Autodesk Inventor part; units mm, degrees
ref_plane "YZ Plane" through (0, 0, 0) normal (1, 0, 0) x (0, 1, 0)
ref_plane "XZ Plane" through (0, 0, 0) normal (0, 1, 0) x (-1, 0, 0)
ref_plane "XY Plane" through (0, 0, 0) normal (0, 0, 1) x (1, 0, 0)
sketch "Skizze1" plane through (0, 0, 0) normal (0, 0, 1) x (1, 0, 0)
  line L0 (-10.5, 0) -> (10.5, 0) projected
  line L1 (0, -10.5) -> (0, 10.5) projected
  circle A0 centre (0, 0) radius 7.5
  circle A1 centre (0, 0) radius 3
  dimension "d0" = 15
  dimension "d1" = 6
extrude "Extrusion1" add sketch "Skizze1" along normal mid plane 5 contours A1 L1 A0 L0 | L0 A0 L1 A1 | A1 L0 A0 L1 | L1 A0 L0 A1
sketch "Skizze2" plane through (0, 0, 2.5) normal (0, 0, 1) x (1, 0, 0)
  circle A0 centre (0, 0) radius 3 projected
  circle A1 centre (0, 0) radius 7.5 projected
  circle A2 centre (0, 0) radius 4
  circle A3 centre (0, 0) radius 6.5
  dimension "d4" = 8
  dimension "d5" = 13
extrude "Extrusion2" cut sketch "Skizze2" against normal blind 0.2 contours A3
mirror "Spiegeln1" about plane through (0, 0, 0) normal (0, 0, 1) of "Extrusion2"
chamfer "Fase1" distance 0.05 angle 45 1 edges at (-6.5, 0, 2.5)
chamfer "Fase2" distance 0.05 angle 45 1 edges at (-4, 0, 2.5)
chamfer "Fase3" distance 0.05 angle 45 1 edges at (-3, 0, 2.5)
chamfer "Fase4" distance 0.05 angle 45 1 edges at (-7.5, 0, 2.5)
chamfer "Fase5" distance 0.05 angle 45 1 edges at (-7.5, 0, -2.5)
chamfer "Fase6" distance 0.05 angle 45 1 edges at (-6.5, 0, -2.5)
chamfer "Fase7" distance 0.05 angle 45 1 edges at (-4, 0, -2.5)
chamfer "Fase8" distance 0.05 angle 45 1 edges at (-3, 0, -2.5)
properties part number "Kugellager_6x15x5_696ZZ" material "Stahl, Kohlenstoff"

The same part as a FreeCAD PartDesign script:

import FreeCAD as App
import Part
import Sketcher
from FreeCAD import Vector
Q = App.Units.Quantity


def edges_at(feature, points):
    """Names of the edges that pass closest to the given points."""
    edges = feature.Shape.Edges
    near = lambda p: min(range(len(edges)), key=lambda i: edges[i].distToShape(Part.Vertex(*p))[0])
    return sorted({f"Edge{near(p) + 1}" for p in points})

doc = App.newDocument("Part")
body = doc.addObject("PartDesign::Body", "Body")

# Sketch on XY plane
sketch1 = body.newObject("Sketcher::SketchObject", "Sketch")
sketch1.AttachmentSupport = (doc.getObject("XY_Plane"), [""])
sketch1.MapMode = "FlatFace"
sketch1.addGeometry([
    Part.Circle(Vector(0, 0, 0), Vector(0, 0, 1), 7.5),
    Part.Circle(Vector(0, 0, 0), Vector(0, 0, 1), 3),
], False)
sketch1.addConstraint([
    Sketcher.Constraint("Coincident", 0, 3, -1, 1),
    Sketcher.Constraint("Coincident", 1, 3, -1, 1),
    Sketcher.Constraint("Diameter", 0, Q("15 mm")),
    Sketcher.Constraint("Diameter", 1, Q("6 mm")),
])
pad1 = body.newObject("PartDesign::Pad", "Pad")
pad1.Profile = sketch1
pad1.Length = 5
pad1.Midplane = True

# Sketch on XY plane
sketch2 = body.newObject("Sketcher::SketchObject", "Sketch001")
sketch2.AttachmentSupport = (doc.getObject("XY_Plane"), [""])
sketch2.MapMode = "FlatFace"
sketch2.AttachmentOffset = App.Placement(Vector(0, 0, 2.5), App.Rotation())
sketch2.addGeometry([
    Part.Circle(Vector(0, 0, 0), Vector(0, 0, 1), 6.5),
    Part.Circle(Vector(0, 0, 0), Vector(0, 0, 1), 4),
], False)
sketch2.addConstraint([
    Sketcher.Constraint("Coincident", 0, 3, -1, 1),
    Sketcher.Constraint("Coincident", 1, 3, -1, 1),
    Sketcher.Constraint("Diameter", 0, Q("13 mm")),
    Sketcher.Constraint("Diameter", 1, Q("8 mm")),
])
pocket1 = body.newObject("PartDesign::Pocket", "Pocket")
pocket1.Profile = sketch2
pocket1.Length = 0.2
doc.recompute()

mirrored = body.newObject("PartDesign::Mirrored", "Mirrored")
mirrored.Originals = [pocket1]
mirrored.MirrorPlane = (doc.getObject("XY_Plane"), [""])
body.Tip = mirrored
doc.recompute()

chamfer = body.newObject("PartDesign::Chamfer", "Chamfer")
chamfer.Base = (mirrored, edges_at(mirrored, [(-6.5, 0, 2.5)]))
chamfer.Size = 0.05
doc.recompute()

chamfer2 = body.newObject("PartDesign::Chamfer", "Chamfer001")
chamfer2.Base = (chamfer, edges_at(chamfer, [(-4, 0, 2.5)]))
chamfer2.Size = 0.05
doc.recompute()

chamfer3 = body.newObject("PartDesign::Chamfer", "Chamfer002")
chamfer3.Base = (chamfer2, edges_at(chamfer2, [(-3, 0, 2.5)]))
chamfer3.Size = 0.05
doc.recompute()

chamfer4 = body.newObject("PartDesign::Chamfer", "Chamfer003")
chamfer4.Base = (chamfer3, edges_at(chamfer3, [(-7.5, 0, 2.5)]))
chamfer4.Size = 0.05
doc.recompute()

chamfer5 = body.newObject("PartDesign::Chamfer", "Chamfer004")
chamfer5.Base = (chamfer4, edges_at(chamfer4, [(-7.5, 0, -2.5)]))
chamfer5.Size = 0.05
doc.recompute()

chamfer6 = body.newObject("PartDesign::Chamfer", "Chamfer005")
chamfer6.Base = (chamfer5, edges_at(chamfer5, [(-6.5, 0, -2.5)]))
chamfer6.Size = 0.05
doc.recompute()

chamfer7 = body.newObject("PartDesign::Chamfer", "Chamfer006")
chamfer7.Base = (chamfer6, edges_at(chamfer6, [(-4, 0, -2.5)]))
chamfer7.Size = 0.05
doc.recompute()

chamfer8 = body.newObject("PartDesign::Chamfer", "Chamfer007")
chamfer8.Base = (chamfer7, edges_at(chamfer7, [(-3, 0, -2.5)]))
chamfer8.Size = 0.05

doc.recompute()
